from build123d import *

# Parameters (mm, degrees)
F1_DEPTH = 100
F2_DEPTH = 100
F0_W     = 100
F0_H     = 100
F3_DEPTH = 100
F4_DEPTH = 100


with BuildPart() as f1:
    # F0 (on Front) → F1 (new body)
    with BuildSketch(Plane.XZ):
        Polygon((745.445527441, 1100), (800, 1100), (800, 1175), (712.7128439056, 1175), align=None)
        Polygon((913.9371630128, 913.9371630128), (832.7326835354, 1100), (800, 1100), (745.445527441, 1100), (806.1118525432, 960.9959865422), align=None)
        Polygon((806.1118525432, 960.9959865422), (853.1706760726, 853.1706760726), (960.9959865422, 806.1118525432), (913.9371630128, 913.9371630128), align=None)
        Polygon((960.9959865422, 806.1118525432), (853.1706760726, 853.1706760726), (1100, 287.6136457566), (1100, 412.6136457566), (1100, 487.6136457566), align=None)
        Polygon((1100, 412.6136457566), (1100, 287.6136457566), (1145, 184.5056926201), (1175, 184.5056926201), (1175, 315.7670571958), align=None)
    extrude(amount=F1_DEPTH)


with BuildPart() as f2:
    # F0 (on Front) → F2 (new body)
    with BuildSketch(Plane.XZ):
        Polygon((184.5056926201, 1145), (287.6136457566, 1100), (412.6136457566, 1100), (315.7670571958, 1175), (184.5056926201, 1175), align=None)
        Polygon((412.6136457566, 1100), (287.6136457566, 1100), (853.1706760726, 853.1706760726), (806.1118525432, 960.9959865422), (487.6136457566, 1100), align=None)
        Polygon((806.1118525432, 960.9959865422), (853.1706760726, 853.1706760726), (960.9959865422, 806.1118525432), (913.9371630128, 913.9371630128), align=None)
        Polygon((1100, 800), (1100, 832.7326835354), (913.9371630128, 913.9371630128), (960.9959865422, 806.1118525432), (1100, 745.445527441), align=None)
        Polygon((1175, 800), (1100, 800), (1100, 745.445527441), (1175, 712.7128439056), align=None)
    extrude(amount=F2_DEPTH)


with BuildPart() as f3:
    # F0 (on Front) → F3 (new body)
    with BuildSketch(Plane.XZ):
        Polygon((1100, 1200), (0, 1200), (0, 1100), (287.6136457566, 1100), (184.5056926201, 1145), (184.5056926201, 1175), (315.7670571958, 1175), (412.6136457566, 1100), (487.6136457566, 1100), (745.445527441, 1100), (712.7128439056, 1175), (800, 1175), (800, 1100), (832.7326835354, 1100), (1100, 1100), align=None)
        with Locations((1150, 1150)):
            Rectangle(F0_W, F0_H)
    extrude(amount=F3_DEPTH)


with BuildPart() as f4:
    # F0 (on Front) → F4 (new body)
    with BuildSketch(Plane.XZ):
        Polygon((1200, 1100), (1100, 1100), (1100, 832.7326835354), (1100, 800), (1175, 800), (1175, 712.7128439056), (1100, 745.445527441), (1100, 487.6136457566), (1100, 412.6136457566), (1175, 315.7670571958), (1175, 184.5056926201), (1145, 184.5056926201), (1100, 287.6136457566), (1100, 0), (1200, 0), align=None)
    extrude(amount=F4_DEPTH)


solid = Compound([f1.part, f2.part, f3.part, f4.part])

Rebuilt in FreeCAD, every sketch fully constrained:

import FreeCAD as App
import Part
import Sketcher
Q = App.Units.Quantity


def add_polygon(sketch, points):
    """Adds a closed chain of lines whose ends are joined by coincident constraints."""
    first, n = sketch.GeometryCount, len(points)
    for a, b in zip(points, points[1:] + points[:1]):
        sketch.addGeometry(Part.LineSegment(App.Vector(*a, 0), App.Vector(*b, 0)), False)
    for i in range(n):
        sketch.addConstraint(Sketcher.Constraint("Coincident", first + i, 2, first + (i + 1) % n, 1))

doc = App.newDocument("Part")
params = doc.addObject("Spreadsheet::Sheet", "Params")
for row, (alias, value) in enumerate([
    ("sketch1_width", "30 mm"),
    ("sketch1_height", "75 mm"),
    ("pad1_length", "100 mm"),
    ("sketch2_width", "75 mm"),
    ("sketch2_height", "30 mm"),
    ("pad2_length", "100 mm"),
    ("sketch3_width", "400 mm"),
    ("sketch3_width2", "1200 mm"),
    ("sketch3_height", "100 mm"),
    ("sketch3_height2", "30 mm"),
    ("sketch3_height3", "75 mm"),
    ("pad3_length", "100 mm"),
    ("sketch4_width", "100 mm"),
    ("sketch4_width2", "75 mm"),
    ("sketch4_width3", "30 mm"),
    ("sketch4_height", "300 mm"),
    ("sketch4_height2", "1100 mm"),
    ("pad4_length", "100 mm"),
], start=1):
    params.set(f"A{row}", alias)
    params.set(f"B{row}", "=" + value)
    params.setAlias(f"B{row}", alias)

body = doc.addObject("PartDesign::Body", "Body")

sketch1 = body.newObject("Sketcher::SketchObject", "Sketch")
sketch1.AttachmentSupport = (doc.getObject("XZ_Plane"), [""])
sketch1.MapMode = "FlatFace"
add_polygon(sketch1, [(800, 1100), (800, 1175), (712.712844, 1175), (1145, 184.505693), (1175, 184.505693), (1175, 315.767057), (1100, 412.613646), (1100, 487.613646), (832.732684, 1100)])
sketch1.addConstraint([
    Sketcher.Constraint("Vertical", 0),
    Sketcher.Constraint("Horizontal", 1),
    Sketcher.Constraint("Horizontal", 3),
    Sketcher.Constraint("Vertical", 4),
    Sketcher.Constraint("Vertical", 6),
    Sketcher.Constraint("Horizontal", 8),
    Sketcher.Constraint("Parallel", 2, 7),
    Sketcher.Constraint("Equal", 0, 6),
    Sketcher.Constraint("DistanceX", 3, 1, 3, 2, Q("30 mm")),
    Sketcher.Constraint("DistanceY", 0, 1, 0, 2, Q("75 mm")),
    Sketcher.Constraint("DistanceX", -1, 1, 0, 2, Q("800 mm")),
    Sketcher.Constraint("DistanceY", -1, 1, 0, 2, Q("1175 mm")),
    Sketcher.Constraint("DistanceX", -1, 1, 2, 2, Q("1145 mm")),
    Sketcher.Constraint("DistanceX", -1, 1, 5, 2, Q("1100 mm")),
    Sketcher.Constraint("Distance", 2, Q("1080.71789 mm")),
    Sketcher.Constraint("Distance", 7, Q("668.168291 mm")),
    Sketcher.Constraint("DistanceX", 1, 2, 1, 1, Q("87.287156 mm")),
    Sketcher.Constraint("DistanceY", 4, 1, 4, 2, Q("131.261365 mm")),
])
sketch1.setExpression("Constraints[17]", "Params.sketch1_width")
sketch1.setExpression("Constraints[18]", "Params.sketch1_height")
pad1 = body.newObject("PartDesign::Pad", "Pad")
pad1.Profile = sketch1
pad1.setExpression("Length", "Params.pad1_length")
body2 = doc.addObject("PartDesign::Body", "Body001")

sketch2 = body2.newObject("Sketcher::SketchObject", "Sketch001")
sketch2.AttachmentSupport = (doc.getObject("XZ_Plane001"), [""])
sketch2.MapMode = "FlatFace"
add_polygon(sketch2, [(184.505693, 1145), (1175, 712.712844), (1175, 800), (1100, 800), (1100, 832.732684), (487.613646, 1100), (412.613646, 1100), (315.767057, 1175), (184.505693, 1175)])
sketch2.addConstraint([
    Sketcher.Constraint("Vertical", 1),
    Sketcher.Constraint("Horizontal", 2),
    Sketcher.Constraint("Vertical", 3),
    Sketcher.Constraint("Horizontal", 5),
    Sketcher.Constraint("Horizontal", 7),
    Sketcher.Constraint("Vertical", 8),
    Sketcher.Constraint("Parallel", 0, 4),
    Sketcher.Constraint("Equal", 2, 5),
    Sketcher.Constraint("DistanceX", 2, 2, 2, 1, Q("75 mm")),
    Sketcher.Constraint("DistanceY", 8, 2, 8, 1, Q("30 mm")),
    Sketcher.Constraint("DistanceX", -1, 1, 0, 2, Q("1175 mm")),
    Sketcher.Constraint("DistanceY", -1, 1, 1, 2, Q("800 mm")),
    Sketcher.Constraint("DistanceY", -1, 1, 4, 2, Q("1100 mm")),
    Sketcher.Constraint("DistanceY", -1, 1, 6, 2, Q("1175 mm")),
    Sketcher.Constraint("Distance", 0, Q("1080.71789 mm")),
    Sketcher.Constraint("Distance", 4, Q("668.168291 mm")),
    Sketcher.Constraint("DistanceX", 7, 2, 7, 1, Q("131.261365 mm")),
    Sketcher.Constraint("DistanceY", 1, 1, 1, 2, Q("87.287156 mm")),
])
sketch2.setExpression("Constraints[17]", "Params.sketch2_width")
sketch2.setExpression("Constraints[18]", "Params.sketch2_height")
pad2 = body2.newObject("PartDesign::Pad", "Pad001")
pad2.Profile = sketch2
pad2.setExpression("Length", "Params.pad2_length")
body3 = doc.addObject("PartDesign::Body", "Body002")

sketch3 = body3.newObject("Sketcher::SketchObject", "Sketch002")
sketch3.AttachmentSupport = (doc.getObject("XZ_Plane002"), [""])
sketch3.MapMode = "FlatFace"
add_polygon(sketch3, [(0, 1200), (0, 1100), (287.613646, 1100), (184.505693, 1145), (184.505693, 1175), (315.767057, 1175), (412.613646, 1100), (745.445527, 1100), (712.712844, 1175), (800, 1175), (800, 1100), (1200, 1100), (1200, 1200)])
sketch3.addConstraint([
    Sketcher.Constraint("Vertical", 0),
    Sketcher.Constraint("Horizontal", 1),
    Sketcher.Constraint("Vertical", 3),
    Sketcher.Constraint("Horizontal", 4),
    Sketcher.Constraint("Horizontal", 6),
    Sketcher.Constraint("Horizontal", 8),
    Sketcher.Constraint("Vertical", 9),
    Sketcher.Constraint("Horizontal", 10),
    Sketcher.Constraint("Vertical", 11),
    Sketcher.Constraint("Horizontal", 12),
    Sketcher.Constraint("PointOnObject", 0, 2, -2),
    Sketcher.Constraint("Horizontal", 1, 2, 5, 2),
    Sketcher.Constraint("Horizontal", 4, 2, 7, 2),
    Sketcher.Constraint("Horizontal", 6, 2, 9, 2),
    Sketcher.Constraint("DistanceX", 10, 1, 10, 2, Q("400 mm")),
    Sketcher.Constraint("DistanceX", 12, 2, 12, 1, Q("1200 mm")),
    Sketcher.Constraint("DistanceY", 0, 2, 0, 1, Q("100 mm")),
    Sketcher.Constraint("DistanceY", 3, 1, 3, 2, Q("30 mm")),
    Sketcher.Constraint("DistanceY", 9, 2, 9, 1, Q("75 mm")),
    Sketcher.Constraint("DistanceY", -1, 1, 0, 2, Q("1100 mm")),
    Sketcher.Constraint("DistanceX", 1, 2, 5, 2, Q("125 mm")),
    Sketcher.Constraint("Distance", 2, Q("112.5 mm")),
    Sketcher.Constraint("DistanceX", 6, 1, 6, 2, Q("332.831882 mm")),
    Sketcher.Constraint("DistanceX", 5, 2, 7, 2, Q("300.099198 mm")),
    Sketcher.Constraint("DistanceX", 1, 1, 1, 2, Q("287.613646 mm")),
    Sketcher.Constraint("DistanceX", 4, 1, 4, 2, Q("131.261365 mm")),
])
sketch3.setExpression("Constraints[27]", "Params.sketch3_width")
sketch3.setExpression("Constraints[28]", "Params.sketch3_width2")
sketch3.setExpression("Constraints[29]", "Params.sketch3_height")
sketch3.setExpression("Constraints[30]", "Params.sketch3_height2")
sketch3.setExpression("Constraints[31]", "Params.sketch3_height3")
pad3 = body3.newObject("PartDesign::Pad", "Pad002")
pad3.Profile = sketch3
pad3.setExpression("Length", "Params.pad3_length")
body4 = doc.addObject("PartDesign::Body", "Body003")

sketch4 = body4.newObject("Sketcher::SketchObject", "Sketch003")
sketch4.AttachmentSupport = (doc.getObject("XZ_Plane003"), [""])
sketch4.MapMode = "FlatFace"
add_polygon(sketch4, [(1200, 1100), (1100, 1100), (1100, 800), (1175, 800), (1175, 712.712844), (1100, 745.445527), (1100, 412.613646), (1175, 315.767057), (1175, 184.505693), (1145, 184.505693), (1100, 287.613646), (1100, 0), (1200, 0)])
sketch4.addConstraint([
    Sketcher.Constraint("Horizontal", 0),
    Sketcher.Constraint("Vertical", 1),
    Sketcher.Constraint("Horizontal", 2),
    Sketcher.Constraint("Vertical", 3),
    Sketcher.Constraint("Vertical", 5),
    Sketcher.Constraint("Vertical", 7),
    Sketcher.Constraint("Horizontal", 8),
    Sketcher.Constraint("Vertical", 10),
    Sketcher.Constraint("Horizontal", 11),
    Sketcher.Constraint("Vertical", 12),
    Sketcher.Constraint("PointOnObject", 10, 2, -1),
    Sketcher.Constraint("Vertical", 1, 2, 4, 2),
    Sketcher.Constraint("Vertical", 3, 2, 6, 2),
    Sketcher.Constraint("Vertical", 5, 2, 9, 2),
    Sketcher.Constraint("DistanceX", 0, 2, 0, 1, Q("100 mm")),
    Sketcher.Constraint("DistanceX", 2, 1, 2, 2, Q("75 mm")),
    Sketcher.Constraint("DistanceX", 8, 2, 8, 1, Q("30 mm")),
    Sketcher.Constraint("DistanceY", 1, 2, 1, 1, Q("300 mm")),
    Sketcher.Constraint("DistanceY", 12, 1, 12, 2, Q("1100 mm")),
    Sketcher.Constraint("DistanceX", -1, 1, 0, 2, Q("1100 mm")),
    Sketcher.Constraint("DistanceY", 9, 2, 5, 2, Q("125 mm")),
    Sketcher.Constraint("Distance", 9, Q("112.5 mm")),
    Sketcher.Constraint("DistanceY", 5, 2, 5, 1, Q("332.831882 mm")),
    Sketcher.Constraint("DistanceY", 5, 2, 3, 2, Q("300.099198 mm")),
    Sketcher.Constraint("DistanceY", 3, 2, 3, 1, Q("87.287156 mm")),
    Sketcher.Constraint("DistanceY", 7, 2, 7, 1, Q("131.261365 mm")),
])
sketch4.setExpression("Constraints[27]", "Params.sketch4_width")
sketch4.setExpression("Constraints[28]", "Params.sketch4_width2")
sketch4.setExpression("Constraints[29]", "Params.sketch4_width3")
sketch4.setExpression("Constraints[30]", "Params.sketch4_height")
sketch4.setExpression("Constraints[31]", "Params.sketch4_height2")
pad4 = body4.newObject("PartDesign::Pad", "Pad003")
pad4.Profile = sketch4
pad4.setExpression("Length", "Params.pad4_length")

doc.recompute()
